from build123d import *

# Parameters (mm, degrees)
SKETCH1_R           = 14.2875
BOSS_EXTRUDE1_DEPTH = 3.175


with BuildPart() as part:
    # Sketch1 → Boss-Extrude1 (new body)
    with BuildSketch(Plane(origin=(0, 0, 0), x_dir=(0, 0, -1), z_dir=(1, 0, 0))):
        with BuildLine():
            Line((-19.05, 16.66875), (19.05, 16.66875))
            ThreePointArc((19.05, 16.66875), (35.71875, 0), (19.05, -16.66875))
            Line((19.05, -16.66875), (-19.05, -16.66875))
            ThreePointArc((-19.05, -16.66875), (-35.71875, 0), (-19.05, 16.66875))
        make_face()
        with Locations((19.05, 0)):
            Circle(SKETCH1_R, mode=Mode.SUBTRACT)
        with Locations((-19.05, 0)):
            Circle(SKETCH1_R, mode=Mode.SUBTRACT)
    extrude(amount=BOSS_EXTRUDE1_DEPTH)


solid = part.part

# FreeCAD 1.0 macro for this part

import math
import FreeCAD as App
import Part
import Sketcher
Q = App.Units.Quantity

doc = App.newDocument("Part")
body = doc.addObject("PartDesign::Body", "Body")

sketch1 = body.newObject("Sketcher::SketchObject", "Sketch")
sketch1.AttachmentSupport = (doc.getObject("YZ_Plane"), [""])
sketch1.MapMode = "FlatFace"
sketch1.addGeometry(Part.LineSegment(App.Vector(16.66875, -19.05, 0), App.Vector(16.66875, 19.05, 0)), False)
sketch1.addGeometry(Part.ArcOfCircle(Part.Circle(App.Vector(0, 19.05, 0), App.Vector(0, 0, 1), 16.66875), math.radians(0), math.radians(180)), False)
sketch1.addGeometry(Part.LineSegment(App.Vector(-16.66875, 19.05, 0), App.Vector(-16.66875, -19.05, 0)), False)
sketch1.addGeometry(Part.ArcOfCircle(Part.Circle(App.Vector(0, -19.05, 0), App.Vector(0, 0, 1), 16.66875), math.radians(180), math.radians(360)), False)
sketch1.addGeometry(Part.Circle(App.Vector(0, -19.05, 0), App.Vector(0, 0, 1), 14.2875), False)
sketch1.addGeometry(Part.Circle(App.Vector(0, 19.05, 0), App.Vector(0, 0, 1), 14.2875), False)
sketch1.addConstraint(Sketcher.Constraint("Tangent", 0, 2, 1, 1))
sketch1.addConstraint(Sketcher.Constraint("Tangent", 1, 2, 2, 1))
sketch1.addConstraint(Sketcher.Constraint("Tangent", 2, 2, 3, 1))
sketch1.addConstraint(Sketcher.Constraint("Tangent", 3, 2, 0, 1))
sketch1.addConstraint(Sketcher.Constraint("Vertical", 0))
sketch1.addConstraint(Sketcher.Constraint("Vertical", 2))
sketch1.addConstraint(Sketcher.Constraint("Coincident", 4, 3, 3, 3))
sketch1.addConstraint(Sketcher.Constraint("Coincident", 5, 3, 1, 3))
sketch1.addConstraint(Sketcher.Constraint("Equal", 4, 5))
sketch1.addConstraint(Sketcher.Constraint("Symmetric", 1, 3, 3, 3, -1, 1))
sketch1.addConstraint(Sketcher.Constraint("Diameter", 4, Q("1.125 in")))
sketch1.addConstraint(Sketcher.Constraint("DistanceY", 0, 1, 0, 2, Q("1.5 in")))
sketch1.addConstraint(Sketcher.Constraint("Radius", 1, Q("0.65625 in")))
pad1 = body.newObject("PartDesign::Pad", "Pad")
pad1.Profile = sketch1
pad1.Length = Q("0.125 in")

doc.recompute()
